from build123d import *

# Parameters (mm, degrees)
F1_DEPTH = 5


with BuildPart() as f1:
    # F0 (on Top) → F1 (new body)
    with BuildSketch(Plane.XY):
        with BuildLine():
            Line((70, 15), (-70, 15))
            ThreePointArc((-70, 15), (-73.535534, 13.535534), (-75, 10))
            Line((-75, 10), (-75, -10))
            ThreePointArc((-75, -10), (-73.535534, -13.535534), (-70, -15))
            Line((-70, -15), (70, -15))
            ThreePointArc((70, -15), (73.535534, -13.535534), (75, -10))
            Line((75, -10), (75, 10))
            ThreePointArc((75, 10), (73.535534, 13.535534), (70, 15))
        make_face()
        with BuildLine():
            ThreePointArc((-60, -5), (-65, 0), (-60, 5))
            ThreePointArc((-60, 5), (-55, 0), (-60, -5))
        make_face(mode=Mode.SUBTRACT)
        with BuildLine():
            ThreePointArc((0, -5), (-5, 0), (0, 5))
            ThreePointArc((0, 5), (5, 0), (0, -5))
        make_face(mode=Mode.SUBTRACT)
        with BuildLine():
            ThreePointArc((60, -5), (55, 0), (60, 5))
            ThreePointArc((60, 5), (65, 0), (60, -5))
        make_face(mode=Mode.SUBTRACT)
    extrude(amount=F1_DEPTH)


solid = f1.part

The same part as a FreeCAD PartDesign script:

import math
import FreeCAD as App
import Part
import Sketcher

V = App.Vector

doc = App.newDocument("Part")
body = doc.addObject("PartDesign::Body", "Body")

sketch1 = body.newObject("Sketcher::SketchObject", "Sketch")
sketch1.AttachmentSupport = (doc.getObject("XY_Plane"), [""])
sketch1.MapMode = "FlatFace"
sketch1.addGeometry([
    Part.LineSegment(V(70, 15, 0), V(-70, 15, 0)),
    Part.ArcOfCircle(Part.Circle(V(-70, 10, 0), V(0, 0, 1), 5), math.radians(90), math.radians(180)),
    Part.LineSegment(V(-75, 10, 0), V(-75, -10, 0)),
    Part.ArcOfCircle(Part.Circle(V(-70, -10, 0), V(0, 0, 1), 5), math.radians(180), math.radians(270)),
    Part.LineSegment(V(-70, -15, 0), V(70, -15, 0)),
    Part.ArcOfCircle(Part.Circle(V(70, -10, 0), V(0, 0, 1), 5), math.radians(-90), math.radians(0)),
    Part.LineSegment(V(75, -10, 0), V(75, 10, 0)),
    Part.ArcOfCircle(Part.Circle(V(70, 10, 0), V(0, 0, 1), 5), math.radians(0), math.radians(90)),
    Part.Circle(V(-60, 0, 0), V(0, 0, 1), 5),
    Part.Circle(V(0, 0, 0), V(0, 0, 1), 5),
    Part.Circle(V(60, 0, 0), V(0, 0, 1), 5),
], False)
sketch1.addConstraint([
    Sketcher.Constraint("Tangent", 0, 2, 1, 1),
    Sketcher.Constraint("Tangent", 1, 2, 2, 1),
    Sketcher.Constraint("Tangent", 2, 2, 3, 1),
    Sketcher.Constraint("Tangent", 3, 2, 4, 1),
    Sketcher.Constraint("Tangent", 4, 2, 5, 1),
    Sketcher.Constraint("Tangent", 5, 2, 6, 1),
    Sketcher.Constraint("Tangent", 6, 2, 7, 1),
    Sketcher.Constraint("Tangent", 7, 2, 0, 1),
    Sketcher.Constraint("Horizontal", 0),
    Sketcher.Constraint("Vertical", 2),
    Sketcher.Constraint("Horizontal", 4),
    Sketcher.Constraint("Vertical", 6),
    Sketcher.Constraint("Coincident", 9, 3, -1, 1),
    Sketcher.Constraint("Equal", 1, 3),
    Sketcher.Constraint("Equal", 3, 5),
    Sketcher.Constraint("Equal", 5, 7),
    Sketcher.Constraint("Equal", 7, 8),
    Sketcher.Constraint("Equal", 8, 9),
    Sketcher.Constraint("Equal", 9, 10),
    Sketcher.Constraint("Symmetric", 1, 3, 5, 3, -1, 1),
    Sketcher.Constraint("Symmetric", 8, 3, 10, 3, -1, 1),
    Sketcher.Constraint("PointOnObject", 8, 3, -1),
    Sketcher.Constraint("Diameter", 8, 10.0),
    Sketcher.Constraint("DistanceX", 0, 2, 0, 1, 140.0),
    Sketcher.Constraint("DistanceY", 2, 2, 2, 1, 20.0),
    Sketcher.Constraint("DistanceX", 8, 3, -1, 1, 60.0),
])
pad1 = body.newObject("PartDesign::Pad", "Pad")
pad1.Profile = sketch1
pad1.Length = 5

doc.recompute()
